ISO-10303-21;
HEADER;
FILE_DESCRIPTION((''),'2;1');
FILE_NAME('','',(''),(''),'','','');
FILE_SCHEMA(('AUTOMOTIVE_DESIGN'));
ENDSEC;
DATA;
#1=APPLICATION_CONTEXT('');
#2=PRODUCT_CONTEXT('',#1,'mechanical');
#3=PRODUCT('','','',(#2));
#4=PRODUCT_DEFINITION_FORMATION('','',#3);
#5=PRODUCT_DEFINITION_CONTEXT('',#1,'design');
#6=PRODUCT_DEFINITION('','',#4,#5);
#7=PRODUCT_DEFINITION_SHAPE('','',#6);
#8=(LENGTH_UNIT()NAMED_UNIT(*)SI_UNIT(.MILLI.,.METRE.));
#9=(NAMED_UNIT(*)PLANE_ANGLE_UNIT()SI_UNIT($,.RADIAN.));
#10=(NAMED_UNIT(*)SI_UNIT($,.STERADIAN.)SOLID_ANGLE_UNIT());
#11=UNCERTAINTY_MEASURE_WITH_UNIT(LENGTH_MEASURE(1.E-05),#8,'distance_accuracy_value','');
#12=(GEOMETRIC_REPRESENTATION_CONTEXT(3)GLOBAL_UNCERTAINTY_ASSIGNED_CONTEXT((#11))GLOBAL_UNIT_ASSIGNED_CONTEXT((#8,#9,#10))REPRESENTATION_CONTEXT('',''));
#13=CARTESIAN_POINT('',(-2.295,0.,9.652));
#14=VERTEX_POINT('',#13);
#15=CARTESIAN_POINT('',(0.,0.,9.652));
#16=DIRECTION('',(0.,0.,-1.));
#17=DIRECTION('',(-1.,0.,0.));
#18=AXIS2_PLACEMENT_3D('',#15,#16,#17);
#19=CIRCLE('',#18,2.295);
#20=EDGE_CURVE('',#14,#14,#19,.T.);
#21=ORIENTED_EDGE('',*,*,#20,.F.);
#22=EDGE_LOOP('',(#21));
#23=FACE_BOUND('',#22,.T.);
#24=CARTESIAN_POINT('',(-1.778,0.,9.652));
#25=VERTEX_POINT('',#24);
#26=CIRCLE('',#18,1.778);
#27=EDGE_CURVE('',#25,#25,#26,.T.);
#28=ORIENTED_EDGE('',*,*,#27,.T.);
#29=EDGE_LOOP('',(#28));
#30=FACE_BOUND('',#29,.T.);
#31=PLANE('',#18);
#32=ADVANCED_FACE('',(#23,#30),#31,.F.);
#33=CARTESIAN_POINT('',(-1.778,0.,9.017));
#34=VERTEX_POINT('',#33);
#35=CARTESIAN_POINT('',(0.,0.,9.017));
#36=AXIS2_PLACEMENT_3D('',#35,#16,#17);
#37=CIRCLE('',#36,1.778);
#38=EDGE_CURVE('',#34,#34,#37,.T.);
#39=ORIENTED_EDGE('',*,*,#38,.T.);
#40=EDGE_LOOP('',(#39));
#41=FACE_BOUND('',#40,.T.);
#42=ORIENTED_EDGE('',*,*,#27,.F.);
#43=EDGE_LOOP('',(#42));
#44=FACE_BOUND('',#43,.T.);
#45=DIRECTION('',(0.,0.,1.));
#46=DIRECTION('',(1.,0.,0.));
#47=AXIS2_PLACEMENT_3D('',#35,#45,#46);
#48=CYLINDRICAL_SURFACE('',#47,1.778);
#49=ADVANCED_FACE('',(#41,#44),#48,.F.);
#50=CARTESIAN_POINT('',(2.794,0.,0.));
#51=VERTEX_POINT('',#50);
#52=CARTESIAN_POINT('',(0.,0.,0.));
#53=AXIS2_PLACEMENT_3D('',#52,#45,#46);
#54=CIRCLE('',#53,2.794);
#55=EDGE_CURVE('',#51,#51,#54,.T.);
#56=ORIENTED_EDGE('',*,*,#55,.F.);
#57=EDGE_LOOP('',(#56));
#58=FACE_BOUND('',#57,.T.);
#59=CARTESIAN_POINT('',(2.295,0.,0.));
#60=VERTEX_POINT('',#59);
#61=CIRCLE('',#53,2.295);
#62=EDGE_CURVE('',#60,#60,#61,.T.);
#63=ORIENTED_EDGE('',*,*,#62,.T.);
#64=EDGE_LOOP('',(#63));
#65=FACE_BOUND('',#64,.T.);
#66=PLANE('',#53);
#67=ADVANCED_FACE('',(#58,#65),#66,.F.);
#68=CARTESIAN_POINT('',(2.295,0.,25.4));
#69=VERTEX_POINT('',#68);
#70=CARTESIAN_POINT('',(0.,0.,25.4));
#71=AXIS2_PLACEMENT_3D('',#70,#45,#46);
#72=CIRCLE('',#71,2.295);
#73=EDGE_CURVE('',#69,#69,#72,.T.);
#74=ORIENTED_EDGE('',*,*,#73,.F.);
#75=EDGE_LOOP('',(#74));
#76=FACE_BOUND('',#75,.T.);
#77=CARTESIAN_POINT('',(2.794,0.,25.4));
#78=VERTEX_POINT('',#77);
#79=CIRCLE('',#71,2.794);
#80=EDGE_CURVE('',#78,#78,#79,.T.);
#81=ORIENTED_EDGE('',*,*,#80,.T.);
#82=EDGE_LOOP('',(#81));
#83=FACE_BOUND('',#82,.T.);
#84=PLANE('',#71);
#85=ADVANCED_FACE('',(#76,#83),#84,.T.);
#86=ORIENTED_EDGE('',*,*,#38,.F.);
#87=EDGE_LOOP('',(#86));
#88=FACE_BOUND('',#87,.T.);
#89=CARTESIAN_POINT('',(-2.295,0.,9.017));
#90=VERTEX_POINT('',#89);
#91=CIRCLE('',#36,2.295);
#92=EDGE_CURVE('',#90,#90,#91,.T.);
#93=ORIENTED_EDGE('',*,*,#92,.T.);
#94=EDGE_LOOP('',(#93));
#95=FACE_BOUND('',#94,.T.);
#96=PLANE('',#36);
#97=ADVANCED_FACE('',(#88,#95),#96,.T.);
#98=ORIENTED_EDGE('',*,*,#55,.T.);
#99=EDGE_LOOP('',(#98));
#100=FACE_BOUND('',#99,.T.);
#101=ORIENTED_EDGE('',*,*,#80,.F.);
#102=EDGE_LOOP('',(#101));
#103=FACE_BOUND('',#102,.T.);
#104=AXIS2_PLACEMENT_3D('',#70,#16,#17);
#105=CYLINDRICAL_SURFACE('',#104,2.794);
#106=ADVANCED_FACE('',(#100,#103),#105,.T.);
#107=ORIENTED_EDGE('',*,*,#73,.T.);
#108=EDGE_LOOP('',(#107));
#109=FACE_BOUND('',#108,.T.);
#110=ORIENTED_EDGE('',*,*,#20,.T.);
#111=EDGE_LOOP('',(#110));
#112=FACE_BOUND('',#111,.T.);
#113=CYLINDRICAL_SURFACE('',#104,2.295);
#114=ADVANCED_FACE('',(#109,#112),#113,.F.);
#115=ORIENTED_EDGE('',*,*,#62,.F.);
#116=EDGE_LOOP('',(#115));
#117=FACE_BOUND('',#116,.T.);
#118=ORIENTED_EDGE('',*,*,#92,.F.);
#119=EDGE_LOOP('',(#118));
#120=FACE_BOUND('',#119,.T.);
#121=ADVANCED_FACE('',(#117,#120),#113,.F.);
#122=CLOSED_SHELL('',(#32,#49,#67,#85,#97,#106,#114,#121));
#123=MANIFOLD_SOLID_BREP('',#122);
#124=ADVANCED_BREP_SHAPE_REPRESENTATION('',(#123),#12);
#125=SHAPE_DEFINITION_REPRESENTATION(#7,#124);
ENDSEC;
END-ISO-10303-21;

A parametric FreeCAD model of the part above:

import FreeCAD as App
import Part
import Sketcher
from FreeCAD import Vector
Q = App.Units.Quantity

doc = App.newDocument("Part")
body = doc.addObject("PartDesign::Body", "Body")

sketch1 = doc.addObject("Sketcher::SketchObject", "Sketch")
body.addObject(sketch1)
sketch1.AttachmentSupport = (doc.XY_Plane, [""])
sketch1.MapMode = "FlatFace"
sketch1.addGeometry(Part.Circle(Vector(0, 0, 0), Vector(0, 0, 1), 2.794), False)
sketch1.addGeometry(Part.Circle(Vector(0, 0, 0), Vector(0, 0, 1), 2.295), False)
sketch1.addConstraint(Sketcher.Constraint("Coincident", 0, 3, -1, 1))
sketch1.addConstraint(Sketcher.Constraint("Coincident", 1, 3, -1, 1))
sketch1.addConstraint(Sketcher.Constraint("Diameter", 0, Q("0.22 in")))
sketch1.addConstraint(Sketcher.Constraint("Diameter", 1, 4.59))
pad1 = doc.addObject("PartDesign::Pad", "Pad")
body.addObject(pad1)
pad1.Profile = sketch1
pad1.Length = Q("1 in")

sketch2 = doc.addObject("Sketcher::SketchObject", "Sketch001")
body.addObject(sketch2)
sketch2.AttachmentSupport = (doc.XY_Plane, [""])
sketch2.MapMode = "FlatFace"
sketch2.AttachmentOffset = App.Placement(Vector(0, 0, 0.38 * 25.4), App.Rotation())
sketch2.addGeometry(Part.Circle(Vector(0, 0, 0), Vector(0, 0, 1), 2.295), False)
sketch2.addGeometry(Part.Circle(Vector(0, 0, 0), Vector(0, 0, 1), 1.778), False)
sketch2.addConstraint(Sketcher.Constraint("Coincident", 0, 3, -1, 1))
sketch2.addConstraint(Sketcher.Constraint("Coincident", 1, 3, -1, 1))
sketch2.addConstraint(Sketcher.Constraint("Diameter", 1, Q("0.14 in")))
sketch2.addConstraint(Sketcher.Constraint("Diameter", 0, 4.59))
pad2 = doc.addObject("PartDesign::Pad", "Pad001")
body.addObject(pad2)
pad2.Profile = sketch2
pad2.Length = Q("0.025 in")
pad2.Reversed = True

doc.recompute()
